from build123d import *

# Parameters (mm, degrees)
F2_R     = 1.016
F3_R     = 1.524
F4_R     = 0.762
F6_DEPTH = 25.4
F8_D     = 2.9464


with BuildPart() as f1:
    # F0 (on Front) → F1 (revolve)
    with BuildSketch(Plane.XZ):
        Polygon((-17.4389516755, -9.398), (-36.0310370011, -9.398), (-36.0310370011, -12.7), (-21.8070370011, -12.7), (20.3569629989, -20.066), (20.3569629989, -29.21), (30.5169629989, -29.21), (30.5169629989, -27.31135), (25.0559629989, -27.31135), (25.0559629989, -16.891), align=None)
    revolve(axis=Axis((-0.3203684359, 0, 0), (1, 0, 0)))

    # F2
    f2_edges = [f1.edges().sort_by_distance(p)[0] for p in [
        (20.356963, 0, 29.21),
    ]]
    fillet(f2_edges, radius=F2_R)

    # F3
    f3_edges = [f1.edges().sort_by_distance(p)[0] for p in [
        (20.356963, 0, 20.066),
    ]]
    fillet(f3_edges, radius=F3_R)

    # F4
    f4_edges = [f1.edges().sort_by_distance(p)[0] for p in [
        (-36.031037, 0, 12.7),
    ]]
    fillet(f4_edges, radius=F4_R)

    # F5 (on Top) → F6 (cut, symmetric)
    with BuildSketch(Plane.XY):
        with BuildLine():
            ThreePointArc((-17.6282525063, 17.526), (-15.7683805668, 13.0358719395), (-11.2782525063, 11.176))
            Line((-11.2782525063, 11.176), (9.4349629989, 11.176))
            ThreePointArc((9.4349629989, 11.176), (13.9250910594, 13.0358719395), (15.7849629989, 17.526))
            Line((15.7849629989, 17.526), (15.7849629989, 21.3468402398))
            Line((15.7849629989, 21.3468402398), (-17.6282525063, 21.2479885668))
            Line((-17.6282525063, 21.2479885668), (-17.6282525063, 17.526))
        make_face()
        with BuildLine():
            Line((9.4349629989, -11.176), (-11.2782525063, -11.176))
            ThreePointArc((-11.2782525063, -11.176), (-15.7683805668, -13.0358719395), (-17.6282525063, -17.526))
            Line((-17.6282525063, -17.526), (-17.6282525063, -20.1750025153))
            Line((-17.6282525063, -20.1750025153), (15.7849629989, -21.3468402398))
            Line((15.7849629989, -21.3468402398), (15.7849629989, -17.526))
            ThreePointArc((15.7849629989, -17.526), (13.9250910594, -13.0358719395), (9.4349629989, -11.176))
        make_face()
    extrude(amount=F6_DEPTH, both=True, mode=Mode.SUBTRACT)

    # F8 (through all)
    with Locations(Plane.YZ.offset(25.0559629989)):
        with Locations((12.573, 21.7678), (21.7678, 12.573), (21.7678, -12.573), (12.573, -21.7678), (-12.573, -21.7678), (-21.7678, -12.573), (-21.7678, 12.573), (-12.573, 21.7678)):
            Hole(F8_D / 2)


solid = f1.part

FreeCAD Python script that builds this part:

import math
import FreeCAD as App
import Part
import Sketcher
from FreeCAD import Vector
Q = App.Units.Quantity


def edges_at(feature, points):
    """Names of the edges that pass closest to the given points."""
    edges = feature.Shape.Edges
    near = lambda p: min(range(len(edges)), key=lambda i: edges[i].distToShape(Part.Vertex(*p))[0])
    return sorted({f"Edge{near(p) + 1}" for p in points})

doc = App.newDocument("Part")
params = doc.addObject("Spreadsheet::Sheet", "Params")
for row, (alias, value) in enumerate([
    ("sketch1_width", "0.4 in"),
    ("sketch1_width2", "0.56 in"),
    ("sketch1_height", "0.13 in"),
    ("sketch1_height2", "0.36 in"),
    ("sketch1_width3", "0.215 in"),
    ("revolution_angle", "360 deg"),
    ("fillet_radius", "0.04 in"),
    ("fillet2_radius", "0.06 in"),
    ("fillet3_radius", "0.03 in"),
    ("sketch2_radius", "0.25 in"),
    ("pocket1_length", "2 in"),
    ("sketch3_diameter", "0.116 in"),
    ("hole_diameter", "0.116 in"),
], start=1):
    params.set(f"A{row}", alias)
    params.set(f"B{row}", "=" + value)
    params.setAlias(f"B{row}", alias)

body = doc.addObject("PartDesign::Body", "Body")

# Sketch on XZ plane
sketch1 = body.newObject("Sketcher::SketchObject", "Sketch")
sketch1.AttachmentSupport = (doc.getObject("XZ_Plane"), [""])
sketch1.MapMode = "FlatFace"
sketch1.addGeometry([
    Part.LineSegment(Vector(-17.4, -9.4, 0), Vector(-36, -9.4, 0)),  # 0
    Part.LineSegment(Vector(-36, -9.4, 0), Vector(-36, -12.7, 0)),  # 1
    Part.LineSegment(Vector(-36, -12.7, 0), Vector(-21.8, -12.7, 0)),  # 2
    Part.LineSegment(Vector(-21.8, -12.7, 0), Vector(20.4, -20.1, 0)),  # 3
    Part.LineSegment(Vector(20.4, -20.1, 0), Vector(20.4, -29.2, 0)),  # 4
    Part.LineSegment(Vector(20.4, -29.2, 0), Vector(30.5, -29.2, 0)),  # 5
    Part.LineSegment(Vector(30.5, -29.2, 0), Vector(30.5, -27.3, 0)),  # 6
    Part.LineSegment(Vector(30.5, -27.3, 0), Vector(25.1, -27.3, 0)),  # 7
    Part.LineSegment(Vector(25.1, -27.3, 0), Vector(25.1, -16.9, 0)),  # 8
    Part.LineSegment(Vector(25.1, -16.9, 0), Vector(-17.4, -9.4, 0)),  # 9
], False)
sketch1.addConstraint([
    Sketcher.Constraint("Coincident", 0, 2, 1, 1),
    Sketcher.Constraint("Coincident", 1, 2, 2, 1),
    Sketcher.Constraint("Coincident", 2, 2, 3, 1),
    Sketcher.Constraint("Coincident", 3, 2, 4, 1),
    Sketcher.Constraint("Coincident", 4, 2, 5, 1),
    Sketcher.Constraint("Coincident", 5, 2, 6, 1),
    Sketcher.Constraint("Coincident", 6, 2, 7, 1),
    Sketcher.Constraint("Coincident", 7, 2, 8, 1),
    Sketcher.Constraint("Coincident", 8, 2, 9, 1),
    Sketcher.Constraint("Coincident", 9, 2, 0, 1),
    Sketcher.Constraint("Horizontal", 0),
    Sketcher.Constraint("Vertical", 1),
    Sketcher.Constraint("Horizontal", 2),
    Sketcher.Constraint("Vertical", 4),
    Sketcher.Constraint("Horizontal", 5),
    Sketcher.Constraint("Vertical", 6),
    Sketcher.Constraint("Horizontal", 7),
    Sketcher.Constraint("Vertical", 8),
    Sketcher.Constraint("DistanceX", 5, 1, 5, 2, Q("0.4 in")),
    Sketcher.Constraint("Angle", 9, Q("170 deg")),
    Sketcher.Constraint("DistanceX", 2, 1, 2, 2, Q("0.56 in")),
    Sketcher.Constraint("DistanceY", 1, 2, 1, 1, Q("0.13 in")),
    Sketcher.Constraint("DistanceY", 4, 2, 4, 1, Q("0.36 in")),
    Sketcher.Constraint("DistanceY", 1, 2, -1, 1, Q("0.5 in")),
    Sketcher.Constraint("DistanceX", 7, 2, 7, 1, Q("0.215 in")),
    Sketcher.Constraint("DistanceY", 3, 2, -1, 1, Q("0.79 in")),
    Sketcher.Constraint("DistanceX", 2, 2, 3, 2, Q("1.66 in")),
    Sketcher.Constraint("DistanceY", 8, 2, -1, 1, Q("0.665 in")),
    Sketcher.Constraint("DistanceY", 6, 1, 6, 2, 1.89865),
    Sketcher.Constraint("DistanceX", 9, 2, -1, 1, 17.438952),
])
sketch1.setExpression("Constraints[18]", "Params.sketch1_width")
sketch1.setExpression("Constraints[20]", "Params.sketch1_width2")
sketch1.setExpression("Constraints[21]", "Params.sketch1_height")
sketch1.setExpression("Constraints[22]", "Params.sketch1_height2")
sketch1.setExpression("Constraints[24]", "Params.sketch1_width3")
revolution = body.newObject("PartDesign::Revolution", "Revolution")
revolution.Profile = sketch1
revolution.ReferenceAxis = (sketch1, ["H_Axis"])
revolution.setExpression("Angle", "Params.revolution_angle")
doc.recompute()

fillet = body.newObject("PartDesign::Fillet", "Fillet")
fillet.Base = (revolution, edges_at(revolution, [(20.357, 0, 29.21)]))
fillet.setExpression("Radius", "Params.fillet_radius")
doc.recompute()

fillet2 = body.newObject("PartDesign::Fillet", "Fillet001")
fillet2.Base = (fillet, edges_at(fillet, [(20.357, 0, 20.066)]))
fillet2.setExpression("Radius", "Params.fillet2_radius")
doc.recompute()

fillet3 = body.newObject("PartDesign::Fillet", "Fillet002")
fillet3.Base = (fillet2, edges_at(fillet2, [(-36.031, 0, 12.7)]))
fillet3.setExpression("Radius", "Params.fillet3_radius")

# Sketch on XY plane
sketch2 = body.newObject("Sketcher::SketchObject", "Sketch001")
sketch2.AttachmentSupport = (doc.getObject("XY_Plane"), [""])
sketch2.MapMode = "FlatFace"
sketch2.addGeometry([
    Part.ArcOfCircle(Part.Circle(Vector(-11.3, 17.5, 0), Vector(0, 0, 1), 6.3), math.radians(180), math.radians(270)),  # 0
    Part.LineSegment(Vector(-11.3, 11.2, 0), Vector(9.4, 11.2, 0)),  # 1
    Part.ArcOfCircle(Part.Circle(Vector(9.4, 17.5, 0), Vector(0, 0, 1), 6.3), math.radians(-90), math.radians(0)),  # 2
    Part.LineSegment(Vector(15.8, 17.5, 0), Vector(15.8, 21.3, 0)),  # 3
    Part.LineSegment(Vector(15.8, 21.3, 0), Vector(-17.6, 21.2, 0)),  # 4
    Part.LineSegment(Vector(-17.6, 21.2, 0), Vector(-17.6, 17.5, 0)),  # 5
    Part.LineSegment(Vector(9.4, -11.2, 0), Vector(-11.3, -11.2, 0)),  # 6
    Part.ArcOfCircle(Part.Circle(Vector(-11.3, -17.5, 0), Vector(0, 0, 1), 6.3), math.radians(90), math.radians(180)),  # 7
    Part.LineSegment(Vector(-17.6, -17.5, 0), Vector(-17.6, -20.2, 0)),  # 8
    Part.LineSegment(Vector(-17.6, -20.2, 0), Vector(15.8, -21.3, 0)),  # 9
    Part.LineSegment(Vector(15.8, -21.3, 0), Vector(15.8, -17.5, 0)),  # 10
    Part.ArcOfCircle(Part.Circle(Vector(9.4, -17.5, 0), Vector(0, 0, 1), 6.3), math.radians(0), math.radians(90)),  # 11
], False)
sketch2.addConstraint([
    Sketcher.Constraint("Tangent", 0, 2, 1, 1),
    Sketcher.Constraint("Tangent", 1, 2, 2, 1),
    Sketcher.Constraint("Tangent", 2, 2, 3, 1),
    Sketcher.Constraint("Coincident", 3, 2, 4, 1),
    Sketcher.Constraint("Coincident", 4, 2, 5, 1),
    Sketcher.Constraint("Tangent", 5, 2, 0, 1),
    Sketcher.Constraint("Tangent", 6, 2, 7, 1),
    Sketcher.Constraint("Tangent", 7, 2, 8, 1),
    Sketcher.Constraint("Coincident", 8, 2, 9, 1),
    Sketcher.Constraint("Coincident", 9, 2, 10, 1),
    Sketcher.Constraint("Tangent", 10, 2, 11, 1),
    Sketcher.Constraint("Tangent", 11, 2, 6, 1),
    Sketcher.Constraint("Horizontal", 1),
    Sketcher.Constraint("Vertical", 3),
    Sketcher.Constraint("Vertical", 5),
    Sketcher.Constraint("Horizontal", 6),
    Sketcher.Constraint("Vertical", 8),
    Sketcher.Constraint("Vertical", 10),
    Sketcher.Constraint("Equal", 0, 2),
    Sketcher.Constraint("Equal", 2, 7),
    Sketcher.Constraint("Equal", 7, 11),
    Sketcher.Constraint("Symmetric", 0, 3, 7, 3, -1),
    Sketcher.Constraint("Symmetric", 3, 2, 9, 2, -1),
    Sketcher.Constraint("Radius", 0, Q("0.25 in")),
    Sketcher.Constraint("DistanceY", -1, 1, 0, 3, Q("0.69 in")),
    Sketcher.Constraint("DistanceY", 3, 1, 3, 2, 3.82084),
    Sketcher.Constraint("DistanceY", 5, 2, 5, 1, 3.721989),
    Sketcher.Constraint("Distance", 4, 33.413362),
    Sketcher.Constraint("Distance", 9, 33.433758),
    Sketcher.Constraint("DistanceX", 0, 3, -1, 1, 11.278253),
])
sketch2.setExpression("Constraints[23]", "Params.sketch2_radius")
pocket1 = body.newObject("PartDesign::Pocket", "Pocket")
pocket1.Profile = sketch2
pocket1.setExpression("Length", "Params.pocket1_length")
pocket1.Midplane = True

# Sketch on YZ plane
sketch3 = body.newObject("Sketcher::SketchObject", "Sketch002")
sketch3.AttachmentSupport = (doc.getObject("YZ_Plane"), [""])
sketch3.MapMode = "FlatFace"
sketch3.AttachmentOffset = App.Placement(Vector(0, 0, 25.055963), App.Rotation())
sketch3.addGeometry([
    Part.Circle(Vector(12.6, 21.8, 0), Vector(0, 0, 1), 1.5),  # 0
    Part.Circle(Vector(21.8, 12.6, 0), Vector(0, 0, 1), 1.5),  # 1
    Part.Circle(Vector(21.8, -12.6, 0), Vector(0, 0, 1), 1.5),  # 2
    Part.Circle(Vector(12.6, -21.8, 0), Vector(0, 0, 1), 1.5),  # 3
    Part.Circle(Vector(-12.6, -21.8, 0), Vector(0, 0, 1), 1.5),  # 4
    Part.Circle(Vector(-21.8, -12.6, 0), Vector(0, 0, 1), 1.5),  # 5
    Part.Circle(Vector(-21.8, 12.6, 0), Vector(0, 0, 1), 1.5),  # 6
    Part.Circle(Vector(-12.6, 21.8, 0), Vector(0, 0, 1), 1.5),  # 7
], False)
sketch3.addConstraint([
    Sketcher.Constraint("Equal", 0, 1),
    Sketcher.Constraint("Equal", 1, 2),
    Sketcher.Constraint("Equal", 2, 3),
    Sketcher.Constraint("Equal", 3, 4),
    Sketcher.Constraint("Equal", 4, 5),
    Sketcher.Constraint("Equal", 5, 6),
    Sketcher.Constraint("Equal", 6, 7),
    Sketcher.Constraint("Symmetric", 0, 3, 4, 3, -1, 1),
    Sketcher.Constraint("Symmetric", 1, 3, 5, 3, -1, 1),
    Sketcher.Constraint("Symmetric", 2, 3, 6, 3, -1, 1),
    Sketcher.Constraint("Symmetric", 3, 3, 7, 3, -1, 1),
    Sketcher.Constraint("Symmetric", 3, 3, 4, 3, -2),
    Sketcher.Constraint("Symmetric", 2, 3, 5, 3, -2),
    Sketcher.Constraint("Diameter", 0, Q("0.116 in")),
    Sketcher.Constraint("DistanceY", 2, 3, 1, 3, Q("0.99 in")),
    Sketcher.Constraint("DistanceX", 4, 3, 3, 3, Q("0.99 in")),
    Sketcher.Constraint("DistanceY", -1, 1, 0, 3, Q("0.857 in")),
    Sketcher.Constraint("DistanceX", -1, 1, 1, 3, Q("0.857 in")),
])
sketch3.setExpression("Constraints[13]", "Params.sketch3_diameter")
doc.recompute()
hole = body.newObject("PartDesign::Hole", "Hole")
hole.Profile = sketch3
hole.ThreadType = "None"
hole.setExpression("Diameter", "Params.hole_diameter")
hole.DepthType = "ThroughAll"

doc.recompute()
